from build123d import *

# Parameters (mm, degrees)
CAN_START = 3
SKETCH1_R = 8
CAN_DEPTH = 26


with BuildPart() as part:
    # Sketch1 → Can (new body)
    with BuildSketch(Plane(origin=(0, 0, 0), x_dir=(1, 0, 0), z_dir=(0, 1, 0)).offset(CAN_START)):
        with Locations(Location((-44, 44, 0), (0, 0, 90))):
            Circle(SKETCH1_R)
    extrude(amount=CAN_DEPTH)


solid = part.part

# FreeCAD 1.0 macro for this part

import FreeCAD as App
import Part
import Sketcher

V = App.Vector

doc = App.newDocument("Part")
body = doc.addObject("PartDesign::Body", "Body")

# Sketch on XZ plane
sketch1 = body.newObject("Sketcher::SketchObject", "Sketch")
sketch1.AttachmentSupport = (doc.getObject("XZ_Plane"), [""])
sketch1.MapMode = "FlatFace"
sketch1.AttachmentOffset = App.Placement(V(0, 0, -3), App.Rotation())
sketch1.addGeometry(Part.Circle(V(-44, -44, 0), V(0, 0, 1), 8), False)
sketch1.addConstraint([
    Sketcher.Constraint("Diameter", 0, 16.0),
    Sketcher.Constraint("DistanceX", 0, 3, -1, 1, 44.0),
    Sketcher.Constraint("DistanceY", 0, 3, -1, 1, 44.0),
])
pad1 = body.newObject("PartDesign::Pad", "Pad")
pad1.Profile = sketch1
pad1.Length = 26
pad1.Reversed = True

doc.recompute()
